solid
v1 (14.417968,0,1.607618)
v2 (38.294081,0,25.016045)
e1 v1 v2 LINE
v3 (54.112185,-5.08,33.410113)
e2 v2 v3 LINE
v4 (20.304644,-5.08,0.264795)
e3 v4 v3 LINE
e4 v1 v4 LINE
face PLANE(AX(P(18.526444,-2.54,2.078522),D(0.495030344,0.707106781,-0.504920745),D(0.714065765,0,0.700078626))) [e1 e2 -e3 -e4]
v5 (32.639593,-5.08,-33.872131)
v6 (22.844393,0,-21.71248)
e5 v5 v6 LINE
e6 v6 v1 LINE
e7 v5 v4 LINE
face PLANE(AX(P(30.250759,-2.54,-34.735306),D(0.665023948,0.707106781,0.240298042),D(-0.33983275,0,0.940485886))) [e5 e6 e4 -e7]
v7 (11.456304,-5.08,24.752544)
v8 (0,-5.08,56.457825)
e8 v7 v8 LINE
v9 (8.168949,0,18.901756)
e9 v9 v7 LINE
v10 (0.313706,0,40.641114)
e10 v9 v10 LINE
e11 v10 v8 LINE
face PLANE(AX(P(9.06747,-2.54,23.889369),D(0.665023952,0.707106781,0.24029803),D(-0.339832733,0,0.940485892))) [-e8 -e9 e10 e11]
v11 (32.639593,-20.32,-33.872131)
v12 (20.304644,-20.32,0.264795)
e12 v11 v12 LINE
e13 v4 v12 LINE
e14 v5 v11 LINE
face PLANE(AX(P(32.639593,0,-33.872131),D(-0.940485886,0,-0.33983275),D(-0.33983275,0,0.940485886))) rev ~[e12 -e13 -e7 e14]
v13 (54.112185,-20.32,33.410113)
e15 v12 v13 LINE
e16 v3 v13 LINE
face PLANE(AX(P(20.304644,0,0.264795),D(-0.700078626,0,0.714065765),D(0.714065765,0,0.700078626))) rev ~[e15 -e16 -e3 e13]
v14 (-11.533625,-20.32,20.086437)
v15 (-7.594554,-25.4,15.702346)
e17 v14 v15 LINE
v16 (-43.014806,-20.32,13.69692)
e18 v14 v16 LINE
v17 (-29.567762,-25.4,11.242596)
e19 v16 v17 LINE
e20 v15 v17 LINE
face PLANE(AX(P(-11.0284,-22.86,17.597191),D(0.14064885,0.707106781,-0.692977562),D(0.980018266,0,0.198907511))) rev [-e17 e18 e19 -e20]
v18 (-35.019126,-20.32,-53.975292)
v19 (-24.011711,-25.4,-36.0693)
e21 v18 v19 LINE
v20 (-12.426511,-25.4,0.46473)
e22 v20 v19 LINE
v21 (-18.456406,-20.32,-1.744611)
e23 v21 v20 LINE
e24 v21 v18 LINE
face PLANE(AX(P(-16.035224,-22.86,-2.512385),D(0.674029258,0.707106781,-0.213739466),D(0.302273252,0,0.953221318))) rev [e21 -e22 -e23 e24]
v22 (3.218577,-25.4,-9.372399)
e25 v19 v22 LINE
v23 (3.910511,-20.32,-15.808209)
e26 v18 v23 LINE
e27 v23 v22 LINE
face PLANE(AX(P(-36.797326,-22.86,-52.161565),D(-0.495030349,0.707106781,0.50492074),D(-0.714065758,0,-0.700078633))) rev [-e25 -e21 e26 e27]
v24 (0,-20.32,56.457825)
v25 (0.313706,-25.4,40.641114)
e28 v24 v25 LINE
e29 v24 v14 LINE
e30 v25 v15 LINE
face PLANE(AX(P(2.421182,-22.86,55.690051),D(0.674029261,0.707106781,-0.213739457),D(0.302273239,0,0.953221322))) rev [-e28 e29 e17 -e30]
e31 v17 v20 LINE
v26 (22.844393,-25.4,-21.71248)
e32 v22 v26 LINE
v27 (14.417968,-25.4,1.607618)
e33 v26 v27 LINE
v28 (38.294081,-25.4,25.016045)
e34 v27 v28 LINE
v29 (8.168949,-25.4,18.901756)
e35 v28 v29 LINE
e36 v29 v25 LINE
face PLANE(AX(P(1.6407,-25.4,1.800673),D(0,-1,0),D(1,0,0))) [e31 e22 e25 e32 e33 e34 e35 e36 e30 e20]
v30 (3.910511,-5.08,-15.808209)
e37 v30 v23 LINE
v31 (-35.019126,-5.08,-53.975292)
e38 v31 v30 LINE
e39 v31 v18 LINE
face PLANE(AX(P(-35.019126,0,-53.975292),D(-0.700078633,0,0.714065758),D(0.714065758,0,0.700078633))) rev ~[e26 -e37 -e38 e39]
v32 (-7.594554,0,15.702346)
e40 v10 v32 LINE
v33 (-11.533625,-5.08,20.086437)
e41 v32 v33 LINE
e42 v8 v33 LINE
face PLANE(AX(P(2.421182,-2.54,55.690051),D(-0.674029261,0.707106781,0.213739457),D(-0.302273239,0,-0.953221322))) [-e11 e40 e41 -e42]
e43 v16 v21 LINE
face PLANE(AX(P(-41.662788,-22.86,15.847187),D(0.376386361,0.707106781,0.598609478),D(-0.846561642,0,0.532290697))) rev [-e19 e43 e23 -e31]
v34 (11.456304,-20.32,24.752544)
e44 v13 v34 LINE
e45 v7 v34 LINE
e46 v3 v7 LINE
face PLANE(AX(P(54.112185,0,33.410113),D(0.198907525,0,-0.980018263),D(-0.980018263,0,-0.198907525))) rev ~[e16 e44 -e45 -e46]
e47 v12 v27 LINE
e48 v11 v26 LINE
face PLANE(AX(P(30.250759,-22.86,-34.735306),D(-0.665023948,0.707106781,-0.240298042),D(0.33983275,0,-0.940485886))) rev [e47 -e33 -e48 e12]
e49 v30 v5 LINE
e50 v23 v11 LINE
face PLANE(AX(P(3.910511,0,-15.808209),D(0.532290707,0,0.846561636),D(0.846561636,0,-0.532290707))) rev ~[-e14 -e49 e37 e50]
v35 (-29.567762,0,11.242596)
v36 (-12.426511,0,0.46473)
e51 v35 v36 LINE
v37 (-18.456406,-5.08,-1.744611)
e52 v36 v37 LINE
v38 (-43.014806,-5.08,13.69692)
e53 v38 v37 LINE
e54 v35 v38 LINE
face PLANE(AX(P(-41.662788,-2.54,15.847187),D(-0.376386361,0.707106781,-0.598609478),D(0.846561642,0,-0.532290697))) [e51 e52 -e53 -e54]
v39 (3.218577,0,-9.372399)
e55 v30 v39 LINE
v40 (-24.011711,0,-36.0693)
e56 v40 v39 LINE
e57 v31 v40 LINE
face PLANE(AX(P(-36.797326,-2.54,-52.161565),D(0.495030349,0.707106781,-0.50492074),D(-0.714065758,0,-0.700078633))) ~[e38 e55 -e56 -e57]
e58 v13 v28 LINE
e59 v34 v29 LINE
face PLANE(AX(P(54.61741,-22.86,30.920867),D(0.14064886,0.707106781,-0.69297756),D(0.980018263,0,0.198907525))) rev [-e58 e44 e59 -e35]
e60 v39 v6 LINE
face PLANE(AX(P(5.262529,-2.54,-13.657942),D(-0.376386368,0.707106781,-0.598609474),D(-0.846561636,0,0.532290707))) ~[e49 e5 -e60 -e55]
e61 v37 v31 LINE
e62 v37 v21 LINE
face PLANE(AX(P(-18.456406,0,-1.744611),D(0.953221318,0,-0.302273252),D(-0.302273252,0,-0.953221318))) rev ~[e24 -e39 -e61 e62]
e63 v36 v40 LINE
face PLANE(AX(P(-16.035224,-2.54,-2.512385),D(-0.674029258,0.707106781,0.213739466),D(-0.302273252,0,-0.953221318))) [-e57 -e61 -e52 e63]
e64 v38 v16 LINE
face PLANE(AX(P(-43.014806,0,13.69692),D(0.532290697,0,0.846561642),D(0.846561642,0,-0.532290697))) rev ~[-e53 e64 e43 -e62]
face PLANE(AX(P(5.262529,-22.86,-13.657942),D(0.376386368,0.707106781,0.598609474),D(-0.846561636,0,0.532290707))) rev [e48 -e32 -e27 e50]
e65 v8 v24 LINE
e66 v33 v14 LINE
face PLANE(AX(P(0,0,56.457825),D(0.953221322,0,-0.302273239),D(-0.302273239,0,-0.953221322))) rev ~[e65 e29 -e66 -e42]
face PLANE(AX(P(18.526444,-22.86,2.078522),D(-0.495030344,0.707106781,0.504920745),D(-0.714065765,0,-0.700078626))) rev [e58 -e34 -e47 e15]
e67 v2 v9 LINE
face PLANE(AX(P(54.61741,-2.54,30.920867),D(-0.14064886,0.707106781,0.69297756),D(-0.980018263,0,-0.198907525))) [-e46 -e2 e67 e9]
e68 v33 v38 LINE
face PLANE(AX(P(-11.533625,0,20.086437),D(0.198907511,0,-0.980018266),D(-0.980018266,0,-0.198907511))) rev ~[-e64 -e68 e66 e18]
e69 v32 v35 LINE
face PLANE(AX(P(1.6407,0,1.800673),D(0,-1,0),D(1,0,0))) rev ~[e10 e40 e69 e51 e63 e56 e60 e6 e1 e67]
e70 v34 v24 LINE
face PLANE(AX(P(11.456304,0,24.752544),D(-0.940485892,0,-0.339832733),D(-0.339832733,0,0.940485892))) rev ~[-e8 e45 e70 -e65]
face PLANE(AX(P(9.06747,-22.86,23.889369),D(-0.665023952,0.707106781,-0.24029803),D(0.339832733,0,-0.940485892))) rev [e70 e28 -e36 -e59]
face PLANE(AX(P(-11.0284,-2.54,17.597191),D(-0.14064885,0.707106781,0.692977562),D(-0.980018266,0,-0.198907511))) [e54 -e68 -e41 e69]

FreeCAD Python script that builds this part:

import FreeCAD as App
import Part
import Sketcher
from FreeCAD import Vector
Q = App.Units.Quantity


def edges_at(feature, points):
    """Names of the edges that pass closest to the given points."""
    edges = feature.Shape.Edges
    near = lambda p: min(range(len(edges)), key=lambda i: edges[i].distToShape(Part.Vertex(*p))[0])
    return sorted({f"Edge{near(p) + 1}" for p in points})

doc = App.newDocument("Part")
params = doc.addObject("Spreadsheet::Sheet", "Params")
for row, (alias, value) in enumerate([
    ("pad1_length", "1 in"),
    ("chamfer_size", "0.2 in"),
    ("chamfer2_size", "0.2 in"),
], start=1):
    params.set(f"A{row}", alias)
    params.set(f"B{row}", "=" + value)
    params.setAlias(f"B{row}", alias)

body = doc.addObject("PartDesign::Body", "Body")

# Sketch on XZ plane
sketch1 = doc.addObject("Sketcher::SketchObject", "Sketch")
body.addObject(sketch1)
sketch1.AttachmentSupport = (doc.XZ_Plane, [""])
sketch1.MapMode = "FlatFace"
sketch1.addGeometry(Part.LineSegment(Vector(4, -16, 0), Vector(33, -34, 0)), False)
sketch1.addGeometry(Part.LineSegment(Vector(33, -34, 0), Vector(20, 0, 0)), False)
sketch1.addGeometry(Part.LineSegment(Vector(20, 0, 0), Vector(54, 33, 0)), False)
sketch1.addGeometry(Part.LineSegment(Vector(54, 33, 0), Vector(11, 25, 0)), False)
sketch1.addGeometry(Part.LineSegment(Vector(11, 25, 0), Vector(0, 56, 0)), False)
sketch1.addGeometry(Part.LineSegment(Vector(0, 56, 0), Vector(-12, 20, 0)), False)
sketch1.addGeometry(Part.LineSegment(Vector(-12, 20, 0), Vector(-43, 14, 0)), False)
sketch1.addGeometry(Part.LineSegment(Vector(-43, 14, 0), Vector(-18, -2, 0)), False)
sketch1.addGeometry(Part.LineSegment(Vector(-18, -2, 0), Vector(-35, -54, 0)), False)
sketch1.addGeometry(Part.LineSegment(Vector(-35, -54, 0), Vector(4, -16, 0)), False)
sketch1.addConstraint(Sketcher.Constraint("Coincident", 0, 2, 1, 1))
sketch1.addConstraint(Sketcher.Constraint("Coincident", 1, 2, 2, 1))
sketch1.addConstraint(Sketcher.Constraint("Coincident", 2, 2, 3, 1))
sketch1.addConstraint(Sketcher.Constraint("Coincident", 3, 2, 4, 1))
sketch1.addConstraint(Sketcher.Constraint("Coincident", 4, 2, 5, 1))
sketch1.addConstraint(Sketcher.Constraint("Coincident", 5, 2, 6, 1))
sketch1.addConstraint(Sketcher.Constraint("Coincident", 6, 2, 7, 1))
sketch1.addConstraint(Sketcher.Constraint("Coincident", 7, 2, 8, 1))
sketch1.addConstraint(Sketcher.Constraint("Coincident", 8, 2, 9, 1))
sketch1.addConstraint(Sketcher.Constraint("Coincident", 9, 2, 0, 1))
sketch1.addConstraint(Sketcher.Constraint("PointOnObject", 4, 2, -2))
sketch1.addConstraint(Sketcher.Constraint("Parallel", 1, 4))
sketch1.addConstraint(Sketcher.Constraint("Parallel", 3, 6))
sketch1.addConstraint(Sketcher.Constraint("Parallel", 0, 7))
sketch1.addConstraint(Sketcher.Constraint("Parallel", 5, 8))
sketch1.addConstraint(Sketcher.Constraint("Parallel", 2, 9))
sketch1.addConstraint(Sketcher.Constraint("DistanceY", 6, 2, 4, 2, Q("1.6835002 in")))
sketch1.addConstraint(Sketcher.Constraint("Distance", 3, 43.525598))
sketch1.addConstraint(Sketcher.Constraint("DistanceX", 6, 2, 0, 2, 75.654399))
sketch1.addConstraint(Sketcher.Constraint("DistanceX", 6, 2, 7, 2, 24.5584))
sketch1.addConstraint(Sketcher.Constraint("DistanceX", 8, 2, 5, 2, 23.485501))
sketch1.addConstraint(Sketcher.Constraint("Distance", 5, 38.156289))
sketch1.addConstraint(Sketcher.Constraint("Distance", 9, 54.51828))
sketch1.addConstraint(Sketcher.Constraint("DistanceY", 0, 2, -1, 1, 33.872131))
sketch1.addConstraint(Sketcher.Constraint("DistanceY", -1, 1, 6, 2, 13.69692))
sketch1.addConstraint(Sketcher.Constraint("DistanceY", 7, 2, -1, 1, 1.744611))
sketch1.addConstraint(Sketcher.Constraint("DistanceX", -1, 1, 9, 2, 3.910511))
sketch1.addConstraint(Sketcher.Constraint("DistanceY", 9, 2, -1, 1, 15.808209))
sketch1.addConstraint(Sketcher.Constraint("DistanceX", 1, 2, 0, 2, 12.334949))
sketch1.addConstraint(Sketcher.Constraint("DistanceX", 1, 2, 2, 2, 33.807541))
pad1 = doc.addObject("PartDesign::Pad", "Pad")
body.addObject(pad1)
pad1.Profile = sketch1
pad1.setExpression("Length", "Params.pad1_length")
doc.recompute()

chamfer = doc.addObject("PartDesign::Chamfer", "Chamfer")
body.addObject(chamfer)
chamfer.Base = (pad1, edges_at(pad1, [
    (-5.767, -25.4, 38.272),
    (-27.274, -25.4, 16.892),
    (-15.554, -25.4, -34.892),
    (18.275, -25.4, -24.84),
    (26.472, -25.4, -16.804),
    (37.208, -25.4, 16.837),
    (32.784, -25.4, 29.081),
    (5.728, -25.4, 40.605),
    (-30.736, -25.4, 5.976),
    (-26.738, -25.4, -27.86),
]))
chamfer.setExpression("Size", "Params.chamfer_size")
doc.recompute()

chamfer2 = doc.addObject("PartDesign::Chamfer", "Chamfer001")
body.addObject(chamfer2)
chamfer2.Base = (chamfer, edges_at(chamfer, [
    (-15.554, 0, -34.892),
    (18.275, 0, -24.84),
    (26.472, 0, -16.804),
    (37.208, 0, 16.837),
    (32.784, 0, 29.081),
    (5.728, 0, 40.605),
    (-5.767, 0, 38.272),
    (-27.274, 0, 16.892),
    (-30.736, 0, 5.976),
    (-26.738, 0, -27.86),
]))
chamfer2.setExpression("Size", "Params.chamfer2_size")

doc.recompute()
